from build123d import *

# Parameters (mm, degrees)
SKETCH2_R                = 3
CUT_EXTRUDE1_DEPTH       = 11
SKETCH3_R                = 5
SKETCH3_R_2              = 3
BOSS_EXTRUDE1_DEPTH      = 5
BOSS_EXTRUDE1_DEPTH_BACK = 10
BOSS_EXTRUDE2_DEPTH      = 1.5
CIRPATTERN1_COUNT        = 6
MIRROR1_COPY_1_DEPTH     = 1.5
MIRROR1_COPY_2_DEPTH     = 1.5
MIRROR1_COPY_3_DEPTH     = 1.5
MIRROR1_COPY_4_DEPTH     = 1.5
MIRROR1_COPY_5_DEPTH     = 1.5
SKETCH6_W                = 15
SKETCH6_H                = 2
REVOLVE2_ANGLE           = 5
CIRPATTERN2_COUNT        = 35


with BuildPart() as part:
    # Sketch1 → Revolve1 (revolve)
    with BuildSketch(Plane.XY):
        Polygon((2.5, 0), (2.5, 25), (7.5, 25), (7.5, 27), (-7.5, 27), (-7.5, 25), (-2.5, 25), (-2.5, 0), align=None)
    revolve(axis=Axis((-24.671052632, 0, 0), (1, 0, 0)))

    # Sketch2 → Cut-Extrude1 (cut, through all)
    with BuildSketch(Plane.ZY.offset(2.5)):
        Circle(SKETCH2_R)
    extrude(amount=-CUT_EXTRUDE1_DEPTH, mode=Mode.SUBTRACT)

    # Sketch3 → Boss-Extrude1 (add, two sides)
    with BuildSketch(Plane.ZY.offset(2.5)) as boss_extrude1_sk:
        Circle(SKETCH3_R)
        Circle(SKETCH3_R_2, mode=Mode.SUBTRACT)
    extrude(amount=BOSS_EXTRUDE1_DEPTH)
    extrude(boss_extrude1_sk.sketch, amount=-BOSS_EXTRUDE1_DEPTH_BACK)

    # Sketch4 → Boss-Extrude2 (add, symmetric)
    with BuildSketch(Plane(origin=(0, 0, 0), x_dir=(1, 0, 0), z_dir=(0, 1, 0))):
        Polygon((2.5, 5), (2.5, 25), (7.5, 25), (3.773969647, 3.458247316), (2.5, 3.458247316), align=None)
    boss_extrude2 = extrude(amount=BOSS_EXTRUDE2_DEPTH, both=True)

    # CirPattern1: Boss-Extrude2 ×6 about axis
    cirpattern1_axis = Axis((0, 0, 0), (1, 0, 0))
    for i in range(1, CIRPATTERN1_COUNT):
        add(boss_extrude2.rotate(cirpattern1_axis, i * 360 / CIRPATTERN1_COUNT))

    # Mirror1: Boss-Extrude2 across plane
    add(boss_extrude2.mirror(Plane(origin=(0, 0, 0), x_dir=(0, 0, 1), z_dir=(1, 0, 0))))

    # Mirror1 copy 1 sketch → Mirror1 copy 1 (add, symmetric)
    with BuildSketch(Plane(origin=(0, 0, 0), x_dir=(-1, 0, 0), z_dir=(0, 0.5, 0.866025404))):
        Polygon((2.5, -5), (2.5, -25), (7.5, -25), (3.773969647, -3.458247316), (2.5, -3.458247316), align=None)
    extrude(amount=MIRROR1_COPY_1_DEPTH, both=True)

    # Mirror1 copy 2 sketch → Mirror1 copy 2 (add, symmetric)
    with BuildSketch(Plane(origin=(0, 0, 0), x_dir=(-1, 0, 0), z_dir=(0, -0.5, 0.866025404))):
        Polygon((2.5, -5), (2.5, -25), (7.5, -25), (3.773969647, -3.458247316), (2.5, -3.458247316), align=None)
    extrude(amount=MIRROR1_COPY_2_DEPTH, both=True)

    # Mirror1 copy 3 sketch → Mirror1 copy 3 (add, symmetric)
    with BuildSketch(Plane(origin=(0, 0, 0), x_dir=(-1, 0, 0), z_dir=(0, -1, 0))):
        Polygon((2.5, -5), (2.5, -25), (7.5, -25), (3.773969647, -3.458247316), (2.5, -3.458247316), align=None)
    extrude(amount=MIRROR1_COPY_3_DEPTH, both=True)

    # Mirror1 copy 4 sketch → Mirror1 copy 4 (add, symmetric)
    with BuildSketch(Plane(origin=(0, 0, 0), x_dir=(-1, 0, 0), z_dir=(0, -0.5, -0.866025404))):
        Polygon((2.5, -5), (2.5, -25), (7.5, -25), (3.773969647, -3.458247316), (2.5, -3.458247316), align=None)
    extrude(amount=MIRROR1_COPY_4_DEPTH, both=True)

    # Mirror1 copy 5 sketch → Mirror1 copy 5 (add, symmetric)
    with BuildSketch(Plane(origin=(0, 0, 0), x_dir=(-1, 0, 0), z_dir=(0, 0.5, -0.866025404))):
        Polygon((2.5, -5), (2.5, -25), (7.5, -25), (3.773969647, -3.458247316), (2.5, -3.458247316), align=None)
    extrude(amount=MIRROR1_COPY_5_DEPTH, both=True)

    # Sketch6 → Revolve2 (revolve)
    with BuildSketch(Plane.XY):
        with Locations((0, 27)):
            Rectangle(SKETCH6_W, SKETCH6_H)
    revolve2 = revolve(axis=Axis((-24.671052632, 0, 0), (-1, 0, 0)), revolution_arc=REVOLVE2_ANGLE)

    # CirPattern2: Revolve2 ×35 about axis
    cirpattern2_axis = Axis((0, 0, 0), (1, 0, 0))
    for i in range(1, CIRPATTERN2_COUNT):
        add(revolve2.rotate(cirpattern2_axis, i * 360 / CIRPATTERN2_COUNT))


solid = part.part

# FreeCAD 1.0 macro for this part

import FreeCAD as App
import Part
import Sketcher


def add_polygon(sketch, points):
    """Adds a closed chain of lines whose ends are joined by coincident constraints."""
    first, n = sketch.GeometryCount, len(points)
    for a, b in zip(points, points[1:] + points[:1]):
        sketch.addGeometry(Part.LineSegment(App.Vector(*a, 0), App.Vector(*b, 0)), False)
    for i in range(n):
        sketch.addConstraint(Sketcher.Constraint("Coincident", first + i, 2, first + (i + 1) % n, 1))

doc = App.newDocument("Part")
body = doc.addObject("PartDesign::Body", "Body")

sketch1 = body.newObject("Sketcher::SketchObject", "Sketch")
sketch1.AttachmentSupport = (doc.getObject("XY_Plane"), [""])
sketch1.MapMode = "FlatFace"
add_polygon(sketch1, [(2.5, 0), (2.5, 25), (7.5, 25), (7.5, 27), (-7.5, 27), (-7.5, 25), (-2.5, 25), (-2.5, 0)])
sketch1.addConstraint(Sketcher.Constraint("Vertical", 0))
sketch1.addConstraint(Sketcher.Constraint("Horizontal", 1))
sketch1.addConstraint(Sketcher.Constraint("Vertical", 2))
sketch1.addConstraint(Sketcher.Constraint("Horizontal", 3))
sketch1.addConstraint(Sketcher.Constraint("Vertical", 4))
sketch1.addConstraint(Sketcher.Constraint("Horizontal", 5))
sketch1.addConstraint(Sketcher.Constraint("Vertical", 6))
sketch1.addConstraint(Sketcher.Constraint("Horizontal", 7))
sketch1.addConstraint(Sketcher.Constraint("Symmetric", 6, 2, 7, 2, -1, 1))
sketch1.addConstraint(Sketcher.Constraint("Symmetric", 1, 2, 4, 2, -2))
sketch1.addConstraint(Sketcher.Constraint("Equal", 5, 7))
sketch1.addConstraint(Sketcher.Constraint("DistanceX", 1, 1, 1, 2, 5.0))
sketch1.addConstraint(Sketcher.Constraint("DistanceY", 0, 1, 0, 2, 25.0))
sketch1.addConstraint(Sketcher.Constraint("DistanceY", 2, 1, 2, 2, 2.0))
revolution = body.newObject("PartDesign::Revolution", "Revolution")
revolution.Profile = sketch1
revolution.ReferenceAxis = (sketch1, ["H_Axis"])
revolution.Angle = 360

sketch2 = body.newObject("Sketcher::SketchObject", "Sketch001")
sketch2.AttachmentSupport = (doc.getObject("YZ_Plane"), [""])
sketch2.MapMode = "FlatFace"
sketch2.AttachmentOffset = App.Placement(App.Vector(0, 0, -2.5), App.Rotation())
sketch2.addGeometry(Part.Circle(App.Vector(0, 0, 0), App.Vector(0, 0, 1), 3), False)
sketch2.addConstraint(Sketcher.Constraint("Coincident", 0, 3, -1, 1))
sketch2.addConstraint(Sketcher.Constraint("Diameter", 0, 6.0))
pocket1 = body.newObject("PartDesign::Pocket", "Pocket")
pocket1.Profile = sketch2
pocket1.Type = "ThroughAll"
pocket1.Reversed = True

sketch3 = body.newObject("Sketcher::SketchObject", "Sketch002")
sketch3.AttachmentSupport = (doc.getObject("YZ_Plane"), [""])
sketch3.MapMode = "FlatFace"
sketch3.AttachmentOffset = App.Placement(App.Vector(0, 0, -2.5), App.Rotation())
sketch3.addGeometry(Part.Circle(App.Vector(0, 0, 0), App.Vector(0, 0, 1), 5), False)
sketch3.addGeometry(Part.Circle(App.Vector(0, 0, 0), App.Vector(0, 0, 1), 3), False)
sketch3.addConstraint(Sketcher.Constraint("Coincident", 0, 3, -1, 1))
sketch3.addConstraint(Sketcher.Constraint("Coincident", 1, 3, -1, 1))
sketch3.addConstraint(Sketcher.Constraint("Diameter", 0, 10.0))
sketch3.addConstraint(Sketcher.Constraint("Diameter", 1, 6.0))
pad1 = body.newObject("PartDesign::Pad", "Pad")
pad1.Profile = sketch3
pad1.Type = "TwoLengths"
pad1.Length = 5
pad1.Length2 = 10
pad1.Reversed = True

sketch4 = body.newObject("Sketcher::SketchObject", "Sketch003")
sketch4.AttachmentSupport = (doc.getObject("XZ_Plane"), [""])
sketch4.MapMode = "FlatFace"
add_polygon(sketch4, [(2.5, -25), (2.5, -3.5), (3.8, -3.5), (7.5, -25)])
sketch4.addConstraint(Sketcher.Constraint("Vertical", 0))
sketch4.addConstraint(Sketcher.Constraint("Horizontal", 1))
sketch4.addConstraint(Sketcher.Constraint("Horizontal", 3))
sketch4.addConstraint(Sketcher.Constraint("DistanceX", 3, 2, 3, 1, 5.0))
sketch4.addConstraint(Sketcher.Constraint("DistanceY", 2, 2, -1, 1, 25.0))
sketch4.addConstraint(Sketcher.Constraint("DistanceX", -1, 1, 0, 2, 2.5))
sketch4.addConstraint(Sketcher.Constraint("DistanceX", 1, 1, 1, 2, 1.27397))
sketch4.addConstraint(Sketcher.Constraint("Distance", 2, 21.86162))
pad2 = body.newObject("PartDesign::Pad", "Pad001")
pad2.Profile = sketch4
pad2.Length = 3
pad2.Midplane = True
doc.recompute()

polarpattern = body.newObject("PartDesign::PolarPattern", "PolarPattern")
polarpattern.Originals = [pad2]
polarpattern.Axis = (doc.getObject("X_Axis"), [""])
polarpattern.Angle = 360
polarpattern.Occurrences = 6
body.Tip = polarpattern
doc.recompute()

mirrored = body.newObject("PartDesign::Mirrored", "Mirrored")
mirrored.Originals = [pad2]
mirrored.MirrorPlane = (doc.getObject("YZ_Plane"), [""])
body.Tip = mirrored

sketch5 = body.newObject("Sketcher::SketchObject", "Sketch004")
sketch5.Placement = App.Placement(App.Vector(0, 0, 0), App.Rotation(App.Vector(-1, 0, 0), App.Vector(0, -0.866025404, 0.5), App.Vector(0, 0.5, 0.866025404), "ZXY"))
add_polygon(sketch5, [(2.5, -25), (7.5, -25), (3.8, -3.5), (2.5, -3.5)])
sketch5.addConstraint(Sketcher.Constraint("Horizontal", 0))
sketch5.addConstraint(Sketcher.Constraint("Horizontal", 2))
sketch5.addConstraint(Sketcher.Constraint("Vertical", 3))
sketch5.addConstraint(Sketcher.Constraint("DistanceX", 0, 1, 0, 2, 5.0))
sketch5.addConstraint(Sketcher.Constraint("DistanceY", 0, 2, -1, 1, 25.0))
sketch5.addConstraint(Sketcher.Constraint("DistanceX", -1, 1, 0, 2, 7.5))
sketch5.addConstraint(Sketcher.Constraint("DistanceX", 2, 2, 2, 1, 1.27397))
sketch5.addConstraint(Sketcher.Constraint("Distance", 1, 21.86162))
pad3 = body.newObject("PartDesign::Pad", "Pad002")
pad3.Profile = sketch5
pad3.Length = 3
pad3.Midplane = True

sketch6 = body.newObject("Sketcher::SketchObject", "Sketch005")
sketch6.Placement = App.Placement(App.Vector(0, 0, 0), App.Rotation(App.Vector(-1, 0, 0), App.Vector(0, -0.866025404, -0.5), App.Vector(0, -0.5, 0.866025404), "ZXY"))
add_polygon(sketch6, [(2.5, -25), (7.5, -25), (3.8, -3.5), (2.5, -3.5)])
sketch6.addConstraint(Sketcher.Constraint("Horizontal", 0))
sketch6.addConstraint(Sketcher.Constraint("Horizontal", 2))
sketch6.addConstraint(Sketcher.Constraint("Vertical", 3))
sketch6.addConstraint(Sketcher.Constraint("DistanceX", 0, 1, 0, 2, 5.0))
sketch6.addConstraint(Sketcher.Constraint("DistanceY", 0, 2, -1, 1, 25.0))
sketch6.addConstraint(Sketcher.Constraint("DistanceX", -1, 1, 0, 2, 7.5))
sketch6.addConstraint(Sketcher.Constraint("DistanceX", 2, 2, 2, 1, 1.27397))
sketch6.addConstraint(Sketcher.Constraint("Distance", 1, 21.86162))
pad4 = body.newObject("PartDesign::Pad", "Pad003")
pad4.Profile = sketch6
pad4.Length = 3
pad4.Midplane = True

sketch7 = body.newObject("Sketcher::SketchObject", "Sketch006")
sketch7.AttachmentSupport = (doc.getObject("XZ_Plane"), [""])
sketch7.MapMode = "FlatFace"
add_polygon(sketch7, [(-2.5, 25), (-7.5, 25), (-3.8, 3.5), (-2.5, 3.5)])
sketch7.addConstraint(Sketcher.Constraint("Horizontal", 0))
sketch7.addConstraint(Sketcher.Constraint("Horizontal", 2))
sketch7.addConstraint(Sketcher.Constraint("Vertical", 3))
sketch7.addConstraint(Sketcher.Constraint("DistanceX", 0, 2, 0, 1, 5.0))
sketch7.addConstraint(Sketcher.Constraint("DistanceY", -1, 1, 0, 2, 25.0))
sketch7.addConstraint(Sketcher.Constraint("DistanceX", 0, 2, -1, 1, 7.5))
sketch7.addConstraint(Sketcher.Constraint("DistanceX", 2, 1, 2, 2, 1.27397))
sketch7.addConstraint(Sketcher.Constraint("Distance", 1, 21.86162))
pad5 = body.newObject("PartDesign::Pad", "Pad004")
pad5.Profile = sketch7
pad5.Length = 3
pad5.Midplane = True

sketch8 = body.newObject("Sketcher::SketchObject", "Sketch007")
sketch8.Placement = App.Placement(App.Vector(0, 0, 0), App.Rotation(App.Vector(-1, 0, 0), App.Vector(0, 0.866025404, -0.5), App.Vector(0, -0.5, -0.866025404), "ZXY"))
add_polygon(sketch8, [(2.5, -25), (7.5, -25), (3.8, -3.5), (2.5, -3.5)])
sketch8.addConstraint(Sketcher.Constraint("Horizontal", 0))
sketch8.addConstraint(Sketcher.Constraint("Horizontal", 2))
sketch8.addConstraint(Sketcher.Constraint("Vertical", 3))
sketch8.addConstraint(Sketcher.Constraint("DistanceX", 0, 1, 0, 2, 5.0))
sketch8.addConstraint(Sketcher.Constraint("DistanceY", 0, 2, -1, 1, 25.0))
sketch8.addConstraint(Sketcher.Constraint("DistanceX", -1, 1, 0, 2, 7.5))
sketch8.addConstraint(Sketcher.Constraint("DistanceX", 2, 2, 2, 1, 1.27397))
sketch8.addConstraint(Sketcher.Constraint("Distance", 1, 21.86162))
pad6 = body.newObject("PartDesign::Pad", "Pad005")
pad6.Profile = sketch8
pad6.Length = 3
pad6.Midplane = True

sketch9 = body.newObject("Sketcher::SketchObject", "Sketch008")
sketch9.Placement = App.Placement(App.Vector(0, 0, 0), App.Rotation(App.Vector(-1, 0, 0), App.Vector(0, 0.866025404, 0.5), App.Vector(0, 0.5, -0.866025404), "ZXY"))
add_polygon(sketch9, [(2.5, -25), (7.5, -25), (3.8, -3.5), (2.5, -3.5)])
sketch9.addConstraint(Sketcher.Constraint("Horizontal", 0))
sketch9.addConstraint(Sketcher.Constraint("Horizontal", 2))
sketch9.addConstraint(Sketcher.Constraint("Vertical", 3))
sketch9.addConstraint(Sketcher.Constraint("DistanceX", 0, 1, 0, 2, 5.0))
sketch9.addConstraint(Sketcher.Constraint("DistanceY", 0, 2, -1, 1, 25.0))
sketch9.addConstraint(Sketcher.Constraint("DistanceX", -1, 1, 0, 2, 7.5))
sketch9.addConstraint(Sketcher.Constraint("DistanceX", 2, 2, 2, 1, 1.27397))
sketch9.addConstraint(Sketcher.Constraint("Distance", 1, 21.86162))
pad7 = body.newObject("PartDesign::Pad", "Pad006")
pad7.Profile = sketch9
pad7.Length = 3
pad7.Midplane = True

sketch10 = body.newObject("Sketcher::SketchObject", "Sketch009")
sketch10.AttachmentSupport = (doc.getObject("XY_Plane"), [""])
sketch10.MapMode = "FlatFace"
add_polygon(sketch10, [(-7.5, 28), (-7.5, 26), (7.5, 26), (7.5, 28)])
sketch10.addConstraint(Sketcher.Constraint("Vertical", 0))
sketch10.addConstraint(Sketcher.Constraint("Horizontal", 1))
sketch10.addConstraint(Sketcher.Constraint("Vertical", 2))
sketch10.addConstraint(Sketcher.Constraint("Horizontal", 3))
sketch10.addConstraint(Sketcher.Constraint("DistanceX", 1, 1, 1, 2, 15.0))
sketch10.addConstraint(Sketcher.Constraint("DistanceY", 0, 2, 0, 1, 2.0))
sketch10.addConstraint(Sketcher.Constraint("DistanceY", -1, 1, 0, 2, 26.0))
sketch10.addConstraint(Sketcher.Constraint("DistanceX", 0, 2, -1, 1, 7.5))
revolution2 = body.newObject("PartDesign::Revolution", "Revolution001")
revolution2.Profile = sketch10
revolution2.ReferenceAxis = (sketch10, ["H_Axis"])
revolution2.Angle = 5
revolution2.Reversed = True
doc.recompute()

polarpattern2 = body.newObject("PartDesign::PolarPattern", "PolarPattern001")
polarpattern2.Originals = [revolution2]
polarpattern2.Axis = (doc.getObject("X_Axis"), [""])
polarpattern2.Angle = 360
polarpattern2.Occurrences = 35
body.Tip = polarpattern2

doc.recompute()
